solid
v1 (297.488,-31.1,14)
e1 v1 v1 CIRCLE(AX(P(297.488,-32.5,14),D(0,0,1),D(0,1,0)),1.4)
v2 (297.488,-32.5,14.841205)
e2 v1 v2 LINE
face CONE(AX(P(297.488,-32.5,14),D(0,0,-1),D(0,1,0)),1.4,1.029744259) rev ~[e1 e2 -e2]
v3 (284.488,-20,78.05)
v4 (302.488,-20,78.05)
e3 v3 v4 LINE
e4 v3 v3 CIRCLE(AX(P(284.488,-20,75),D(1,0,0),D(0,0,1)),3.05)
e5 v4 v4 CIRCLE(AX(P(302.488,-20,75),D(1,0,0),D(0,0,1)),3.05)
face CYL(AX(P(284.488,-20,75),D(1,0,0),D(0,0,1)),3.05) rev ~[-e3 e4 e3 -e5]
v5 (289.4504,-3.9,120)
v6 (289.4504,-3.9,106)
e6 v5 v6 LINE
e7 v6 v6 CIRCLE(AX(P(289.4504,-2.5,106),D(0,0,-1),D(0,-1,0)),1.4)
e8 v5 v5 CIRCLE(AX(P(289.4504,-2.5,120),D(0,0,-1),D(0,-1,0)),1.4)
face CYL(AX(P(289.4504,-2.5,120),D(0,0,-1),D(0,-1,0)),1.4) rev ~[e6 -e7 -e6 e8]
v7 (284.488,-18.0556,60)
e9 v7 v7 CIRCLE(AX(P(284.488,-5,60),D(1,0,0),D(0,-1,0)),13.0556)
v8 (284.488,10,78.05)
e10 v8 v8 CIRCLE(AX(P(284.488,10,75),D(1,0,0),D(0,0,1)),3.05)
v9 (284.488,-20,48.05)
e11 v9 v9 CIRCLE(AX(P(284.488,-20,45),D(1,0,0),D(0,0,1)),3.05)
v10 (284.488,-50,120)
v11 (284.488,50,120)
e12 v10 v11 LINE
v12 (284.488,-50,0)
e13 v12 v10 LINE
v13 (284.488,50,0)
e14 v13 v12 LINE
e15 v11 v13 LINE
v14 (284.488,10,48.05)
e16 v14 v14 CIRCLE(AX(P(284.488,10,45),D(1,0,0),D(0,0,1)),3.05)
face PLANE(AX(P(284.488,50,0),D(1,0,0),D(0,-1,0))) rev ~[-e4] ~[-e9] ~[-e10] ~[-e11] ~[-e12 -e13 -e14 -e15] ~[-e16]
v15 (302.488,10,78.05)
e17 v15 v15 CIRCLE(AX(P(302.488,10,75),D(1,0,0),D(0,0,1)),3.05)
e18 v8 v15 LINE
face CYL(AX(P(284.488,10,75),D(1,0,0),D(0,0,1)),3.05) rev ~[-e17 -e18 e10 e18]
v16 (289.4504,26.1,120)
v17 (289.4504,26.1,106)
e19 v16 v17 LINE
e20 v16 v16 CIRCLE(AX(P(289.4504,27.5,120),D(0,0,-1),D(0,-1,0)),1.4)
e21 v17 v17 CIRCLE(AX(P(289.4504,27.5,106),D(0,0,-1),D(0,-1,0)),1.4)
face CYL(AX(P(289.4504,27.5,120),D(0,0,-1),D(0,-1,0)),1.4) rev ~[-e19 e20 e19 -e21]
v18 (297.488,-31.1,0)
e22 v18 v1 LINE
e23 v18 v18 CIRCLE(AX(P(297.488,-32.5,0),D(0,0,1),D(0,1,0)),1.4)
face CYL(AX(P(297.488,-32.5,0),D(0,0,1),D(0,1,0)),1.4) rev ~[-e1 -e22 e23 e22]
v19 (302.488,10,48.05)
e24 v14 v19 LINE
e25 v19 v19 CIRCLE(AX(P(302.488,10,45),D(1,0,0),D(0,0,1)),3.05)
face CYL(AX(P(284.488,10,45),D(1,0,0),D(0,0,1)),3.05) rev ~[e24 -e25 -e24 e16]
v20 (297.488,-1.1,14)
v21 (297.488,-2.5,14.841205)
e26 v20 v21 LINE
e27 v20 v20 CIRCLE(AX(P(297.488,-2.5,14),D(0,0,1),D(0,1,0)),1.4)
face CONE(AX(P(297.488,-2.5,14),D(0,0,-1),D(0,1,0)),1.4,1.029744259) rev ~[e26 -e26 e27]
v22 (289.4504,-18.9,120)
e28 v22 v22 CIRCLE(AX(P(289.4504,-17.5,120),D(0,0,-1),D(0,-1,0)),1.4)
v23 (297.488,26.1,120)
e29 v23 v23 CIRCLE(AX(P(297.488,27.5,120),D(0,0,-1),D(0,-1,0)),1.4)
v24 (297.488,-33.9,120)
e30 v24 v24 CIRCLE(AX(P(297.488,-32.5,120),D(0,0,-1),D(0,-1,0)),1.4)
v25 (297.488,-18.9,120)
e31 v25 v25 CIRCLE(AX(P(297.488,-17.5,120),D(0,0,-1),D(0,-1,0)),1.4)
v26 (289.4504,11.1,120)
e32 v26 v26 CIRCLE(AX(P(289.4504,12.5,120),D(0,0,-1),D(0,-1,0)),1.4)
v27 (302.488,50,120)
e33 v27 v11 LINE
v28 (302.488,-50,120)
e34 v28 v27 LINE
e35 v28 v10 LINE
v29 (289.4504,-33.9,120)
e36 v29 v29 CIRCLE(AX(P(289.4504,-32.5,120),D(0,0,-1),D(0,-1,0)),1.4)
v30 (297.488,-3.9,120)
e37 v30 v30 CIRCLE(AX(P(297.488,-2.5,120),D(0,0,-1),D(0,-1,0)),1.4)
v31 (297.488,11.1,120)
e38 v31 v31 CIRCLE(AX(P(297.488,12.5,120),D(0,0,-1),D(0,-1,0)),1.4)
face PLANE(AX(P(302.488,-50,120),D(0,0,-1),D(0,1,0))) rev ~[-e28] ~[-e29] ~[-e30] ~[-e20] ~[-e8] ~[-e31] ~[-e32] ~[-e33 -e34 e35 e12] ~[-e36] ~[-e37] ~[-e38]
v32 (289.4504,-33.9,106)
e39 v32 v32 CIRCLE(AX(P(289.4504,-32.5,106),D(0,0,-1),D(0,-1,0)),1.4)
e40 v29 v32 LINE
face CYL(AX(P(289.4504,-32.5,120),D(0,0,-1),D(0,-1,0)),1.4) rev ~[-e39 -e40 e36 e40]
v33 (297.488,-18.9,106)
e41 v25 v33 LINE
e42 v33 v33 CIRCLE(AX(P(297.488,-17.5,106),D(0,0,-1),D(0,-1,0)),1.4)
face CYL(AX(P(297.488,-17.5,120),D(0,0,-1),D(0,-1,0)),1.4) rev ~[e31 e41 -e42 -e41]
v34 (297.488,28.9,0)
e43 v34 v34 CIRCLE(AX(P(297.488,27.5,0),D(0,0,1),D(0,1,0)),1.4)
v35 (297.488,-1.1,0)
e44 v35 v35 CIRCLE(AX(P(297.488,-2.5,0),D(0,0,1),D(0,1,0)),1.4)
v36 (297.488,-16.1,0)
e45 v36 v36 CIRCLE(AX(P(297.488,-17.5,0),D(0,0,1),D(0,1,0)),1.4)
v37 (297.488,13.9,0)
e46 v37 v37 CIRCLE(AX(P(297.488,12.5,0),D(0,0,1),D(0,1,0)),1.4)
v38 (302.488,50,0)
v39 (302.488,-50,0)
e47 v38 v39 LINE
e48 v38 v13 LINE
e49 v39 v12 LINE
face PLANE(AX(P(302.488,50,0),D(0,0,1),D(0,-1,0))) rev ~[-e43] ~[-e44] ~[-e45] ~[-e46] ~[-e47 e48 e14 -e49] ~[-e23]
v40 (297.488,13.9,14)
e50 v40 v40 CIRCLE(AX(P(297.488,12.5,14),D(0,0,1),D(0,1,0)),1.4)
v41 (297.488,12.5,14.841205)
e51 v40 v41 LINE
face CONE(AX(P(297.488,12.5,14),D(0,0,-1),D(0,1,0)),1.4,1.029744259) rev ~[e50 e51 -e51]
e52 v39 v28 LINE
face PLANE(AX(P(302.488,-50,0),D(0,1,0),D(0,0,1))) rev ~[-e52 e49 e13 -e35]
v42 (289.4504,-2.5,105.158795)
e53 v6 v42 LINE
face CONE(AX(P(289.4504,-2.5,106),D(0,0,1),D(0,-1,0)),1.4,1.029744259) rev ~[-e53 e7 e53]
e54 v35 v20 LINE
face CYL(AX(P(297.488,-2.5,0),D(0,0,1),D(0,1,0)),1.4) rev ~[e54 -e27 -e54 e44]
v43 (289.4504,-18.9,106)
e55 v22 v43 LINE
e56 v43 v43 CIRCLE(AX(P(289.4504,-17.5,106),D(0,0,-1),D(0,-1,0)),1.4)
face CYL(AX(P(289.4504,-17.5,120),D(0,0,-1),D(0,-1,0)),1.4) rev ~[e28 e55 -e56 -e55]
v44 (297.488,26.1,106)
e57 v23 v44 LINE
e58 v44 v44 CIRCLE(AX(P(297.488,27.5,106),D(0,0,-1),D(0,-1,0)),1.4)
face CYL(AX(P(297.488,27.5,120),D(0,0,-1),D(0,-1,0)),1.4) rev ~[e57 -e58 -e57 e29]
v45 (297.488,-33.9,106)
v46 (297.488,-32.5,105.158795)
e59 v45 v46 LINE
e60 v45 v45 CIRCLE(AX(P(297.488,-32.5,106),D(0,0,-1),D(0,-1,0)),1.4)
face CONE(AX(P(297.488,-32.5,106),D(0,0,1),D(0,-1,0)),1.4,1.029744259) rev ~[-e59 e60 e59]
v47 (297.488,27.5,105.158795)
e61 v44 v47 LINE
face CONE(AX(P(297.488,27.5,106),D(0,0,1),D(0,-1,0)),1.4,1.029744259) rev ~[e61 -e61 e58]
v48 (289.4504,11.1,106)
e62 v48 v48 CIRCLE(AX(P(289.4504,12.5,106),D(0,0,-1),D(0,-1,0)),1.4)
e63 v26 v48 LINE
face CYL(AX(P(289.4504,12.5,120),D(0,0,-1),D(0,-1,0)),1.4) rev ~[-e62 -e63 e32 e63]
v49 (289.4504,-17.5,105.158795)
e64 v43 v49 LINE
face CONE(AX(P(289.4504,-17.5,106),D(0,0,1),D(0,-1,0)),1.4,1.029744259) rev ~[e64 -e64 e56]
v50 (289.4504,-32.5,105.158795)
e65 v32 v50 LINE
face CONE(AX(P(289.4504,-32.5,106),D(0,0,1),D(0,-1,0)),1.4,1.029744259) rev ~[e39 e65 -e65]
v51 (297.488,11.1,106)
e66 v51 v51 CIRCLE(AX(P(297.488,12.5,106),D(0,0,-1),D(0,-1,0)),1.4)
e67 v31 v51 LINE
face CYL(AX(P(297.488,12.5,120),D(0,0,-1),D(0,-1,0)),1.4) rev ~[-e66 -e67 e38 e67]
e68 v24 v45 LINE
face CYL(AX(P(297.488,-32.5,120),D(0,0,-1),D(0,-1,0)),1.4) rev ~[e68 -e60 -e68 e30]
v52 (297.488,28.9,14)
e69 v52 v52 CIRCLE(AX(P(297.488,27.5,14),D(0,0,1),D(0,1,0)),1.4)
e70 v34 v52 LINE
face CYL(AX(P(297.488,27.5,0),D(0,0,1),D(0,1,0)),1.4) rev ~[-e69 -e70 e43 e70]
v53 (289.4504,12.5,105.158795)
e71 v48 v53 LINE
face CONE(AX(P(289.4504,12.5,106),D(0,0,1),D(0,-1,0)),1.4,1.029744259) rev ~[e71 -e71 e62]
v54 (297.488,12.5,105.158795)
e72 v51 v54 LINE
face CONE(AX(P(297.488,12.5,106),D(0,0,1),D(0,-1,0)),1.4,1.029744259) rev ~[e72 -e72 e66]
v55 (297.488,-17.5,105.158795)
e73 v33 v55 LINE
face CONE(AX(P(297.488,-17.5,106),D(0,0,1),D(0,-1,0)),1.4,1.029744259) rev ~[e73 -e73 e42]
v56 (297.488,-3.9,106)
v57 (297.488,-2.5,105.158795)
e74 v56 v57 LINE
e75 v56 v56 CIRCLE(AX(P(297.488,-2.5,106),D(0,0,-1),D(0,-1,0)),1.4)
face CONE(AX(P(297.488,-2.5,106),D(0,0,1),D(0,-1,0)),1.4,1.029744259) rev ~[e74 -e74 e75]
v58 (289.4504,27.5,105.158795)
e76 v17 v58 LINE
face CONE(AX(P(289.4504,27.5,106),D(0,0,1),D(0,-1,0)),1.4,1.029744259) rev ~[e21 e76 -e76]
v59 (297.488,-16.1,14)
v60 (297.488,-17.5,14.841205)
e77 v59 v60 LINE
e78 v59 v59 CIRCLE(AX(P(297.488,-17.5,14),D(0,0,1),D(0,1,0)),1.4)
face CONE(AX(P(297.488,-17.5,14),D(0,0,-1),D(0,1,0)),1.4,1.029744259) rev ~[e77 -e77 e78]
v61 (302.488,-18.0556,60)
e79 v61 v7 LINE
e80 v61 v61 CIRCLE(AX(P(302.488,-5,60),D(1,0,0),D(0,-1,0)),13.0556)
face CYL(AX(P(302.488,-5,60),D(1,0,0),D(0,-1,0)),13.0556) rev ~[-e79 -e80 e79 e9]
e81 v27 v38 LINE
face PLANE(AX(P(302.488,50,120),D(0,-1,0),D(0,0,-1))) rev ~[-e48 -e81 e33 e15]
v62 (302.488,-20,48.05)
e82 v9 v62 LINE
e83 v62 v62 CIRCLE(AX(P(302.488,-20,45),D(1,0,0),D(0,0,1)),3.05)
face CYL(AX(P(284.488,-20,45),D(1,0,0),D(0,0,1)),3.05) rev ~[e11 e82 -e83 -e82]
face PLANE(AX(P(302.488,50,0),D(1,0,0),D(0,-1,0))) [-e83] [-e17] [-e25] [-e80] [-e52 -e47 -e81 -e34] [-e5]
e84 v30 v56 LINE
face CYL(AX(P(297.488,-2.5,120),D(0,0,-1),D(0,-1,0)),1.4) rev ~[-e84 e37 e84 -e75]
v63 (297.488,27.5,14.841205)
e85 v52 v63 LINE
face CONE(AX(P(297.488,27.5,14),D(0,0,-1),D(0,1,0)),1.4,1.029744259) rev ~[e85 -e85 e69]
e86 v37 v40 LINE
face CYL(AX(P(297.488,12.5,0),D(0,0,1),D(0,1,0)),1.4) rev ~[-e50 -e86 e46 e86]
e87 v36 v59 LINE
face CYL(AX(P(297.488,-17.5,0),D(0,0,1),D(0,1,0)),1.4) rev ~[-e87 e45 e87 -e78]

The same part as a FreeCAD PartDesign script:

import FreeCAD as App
import Part
import Sketcher
from FreeCAD import Vector


def add_polygon(sketch, points):
    """Adds a closed chain of lines whose ends are joined by coincident constraints."""
    first, n = sketch.GeometryCount, len(points)
    for a, b in zip(points, points[1:] + points[:1]):
        sketch.addGeometry(Part.LineSegment(App.Vector(*a, 0), App.Vector(*b, 0)), False)
    for i in range(n):
        sketch.addConstraint(Sketcher.Constraint("Coincident", first + i, 2, first + (i + 1) % n, 1))

doc = App.newDocument("Part")
params = doc.addObject("Spreadsheet::Sheet", "Params")
for row, (alias, value) in enumerate([
    ("sketch1_width", "100 mm"),
    ("sketch1_height", "120 mm"),
    ("pad1_length", "18 mm"),
    ("sketch2_diameter", "2.8 mm"),
    ("hole_diameter", "2.8 mm"),
    ("hole_depth", "14 mm"),
    ("sketch3_diameter", "2.8 mm"),
    ("hole2_diameter", "2.8 mm"),
    ("hole2_depth", "14 mm"),
    ("sketch4_diameter", "6.1 mm"),
    ("hole3_diameter", "6.1 mm"),
], start=1):
    params.set(f"A{row}", alias)
    params.set(f"B{row}", "=" + value)
    params.setAlias(f"B{row}", alias)

body = doc.addObject("PartDesign::Body", "Body")

sketch1 = doc.addObject("Sketcher::SketchObject", "Sketch")
body.addObject(sketch1)
sketch1.AttachmentSupport = (doc.YZ_Plane, [""])
sketch1.MapMode = "FlatFace"
sketch1.AttachmentOffset = App.Placement(Vector(0, 0, 302.488), App.Rotation())
add_polygon(sketch1, [(50, 120), (-50, 120), (-50, 0), (50, 0)])
sketch1.addGeometry(Part.Circle(Vector(-5, 60, 0), Vector(0, 0, 1), 13), False)
sketch1.addConstraint(Sketcher.Constraint("Horizontal", 0))
sketch1.addConstraint(Sketcher.Constraint("Vertical", 1))
sketch1.addConstraint(Sketcher.Constraint("Horizontal", 2))
sketch1.addConstraint(Sketcher.Constraint("Vertical", 3))
sketch1.addConstraint(Sketcher.Constraint("Symmetric", 1, 2, 2, 2, -1, 1))
sketch1.addConstraint(Sketcher.Constraint("DistanceX", 0, 2, 0, 1, 100.0))
sketch1.addConstraint(Sketcher.Constraint("DistanceY", 1, 2, 1, 1, 120.0))
sketch1.addConstraint(Sketcher.Constraint("DistanceX", 4, 3, -1, 1, 5.0))
sketch1.addConstraint(Sketcher.Constraint("DistanceY", -1, 1, 4, 3, 60.0))
sketch1.addConstraint(Sketcher.Constraint("Diameter", 4, 26.1112))
sketch1.setExpression("Constraints[9]", "Params.sketch1_width")
sketch1.setExpression("Constraints[10]", "Params.sketch1_height")
pad1 = doc.addObject("PartDesign::Pad", "Pad")
body.addObject(pad1)
pad1.Profile = sketch1
pad1.setExpression("Length", "Params.pad1_length")
pad1.Reversed = True

sketch2 = doc.addObject("Sketcher::SketchObject", "Sketch001")
body.addObject(sketch2)
sketch2.AttachmentSupport = (doc.XY_Plane, [""])
sketch2.MapMode = "FlatFace"
sketch2.addGeometry(Part.Circle(Vector(297.5, -32.5, 0), Vector(0, 0, 1), 1.4), False)
sketch2.addGeometry(Part.Circle(Vector(297.5, -17.5, 0), Vector(0, 0, 1), 1.4), False)
sketch2.addGeometry(Part.Circle(Vector(297.5, -2.5, 0), Vector(0, 0, 1), 1.4), False)
sketch2.addGeometry(Part.Circle(Vector(297.5, 12.5, 0), Vector(0, 0, 1), 1.4), False)
sketch2.addGeometry(Part.Circle(Vector(297.5, 27.5, 0), Vector(0, 0, 1), 1.4), False)
sketch2.addConstraint(Sketcher.Constraint("Equal", 0, 1))
sketch2.addConstraint(Sketcher.Constraint("Equal", 1, 2))
sketch2.addConstraint(Sketcher.Constraint("Equal", 2, 3))
sketch2.addConstraint(Sketcher.Constraint("Equal", 3, 4))
sketch2.addConstraint(Sketcher.Constraint("Vertical", 0, 3, 1, 3))
sketch2.addConstraint(Sketcher.Constraint("Vertical", 1, 3, 2, 3))
sketch2.addConstraint(Sketcher.Constraint("Vertical", 2, 3, 3, 3))
sketch2.addConstraint(Sketcher.Constraint("Vertical", 3, 3, 4, 3))
sketch2.addConstraint(Sketcher.Constraint("Diameter", 0, 2.8))
sketch2.addConstraint(Sketcher.Constraint("DistanceY", 0, 3, 1, 3, 15.0))
sketch2.addConstraint(Sketcher.Constraint("DistanceY", 1, 3, 2, 3, 15.0))
sketch2.addConstraint(Sketcher.Constraint("DistanceY", 2, 3, 3, 3, 15.0))
sketch2.addConstraint(Sketcher.Constraint("DistanceY", 3, 3, 4, 3, 15.0))
sketch2.addConstraint(Sketcher.Constraint("DistanceY", 0, 3, -1, 1, 32.5))
sketch2.addConstraint(Sketcher.Constraint("DistanceX", -1, 1, 0, 3, 297.488))
sketch2.setExpression("Constraints[8]", "Params.sketch2_diameter")
doc.recompute()
hole = doc.addObject("PartDesign::Hole", "Hole")
body.addObject(hole)
hole.Profile = sketch2
hole.ThreadType = "None"
hole.setExpression("Diameter", "Params.hole_diameter")
hole.DepthType = "Dimension"
hole.setExpression("Depth", "Params.hole_depth")
hole.DrillPoint = "Angled"
hole.DrillPointAngle = 118
hole.Reversed = True

sketch3 = doc.addObject("Sketcher::SketchObject", "Sketch002")
body.addObject(sketch3)
sketch3.AttachmentSupport = (doc.XY_Plane, [""])
sketch3.MapMode = "FlatFace"
sketch3.AttachmentOffset = App.Placement(Vector(0, 0, 120), App.Rotation())
sketch3.addGeometry(Part.Circle(Vector(289.5, 27.5, 0), Vector(0, 0, 1), 1.4), False)
sketch3.addGeometry(Part.Circle(Vector(289.5, 12.5, 0), Vector(0, 0, 1), 1.4), False)
sketch3.addGeometry(Part.Circle(Vector(289.5, -2.5, 0), Vector(0, 0, 1), 1.4), False)
sketch3.addGeometry(Part.Circle(Vector(289.5, -17.5, 0), Vector(0, 0, 1), 1.4), False)
sketch3.addGeometry(Part.Circle(Vector(289.5, -32.5, 0), Vector(0, 0, 1), 1.4), False)
sketch3.addGeometry(Part.Circle(Vector(297.5, -32.5, 0), Vector(0, 0, 1), 1.4), False)
sketch3.addGeometry(Part.Circle(Vector(297.5, -17.5, 0), Vector(0, 0, 1), 1.4), False)
sketch3.addGeometry(Part.Circle(Vector(297.5, -2.5, 0), Vector(0, 0, 1), 1.4), False)
sketch3.addGeometry(Part.Circle(Vector(297.5, 12.5, 0), Vector(0, 0, 1), 1.4), False)
sketch3.addGeometry(Part.Circle(Vector(297.5, 27.5, 0), Vector(0, 0, 1), 1.4), False)
sketch3.addConstraint(Sketcher.Constraint("Equal", 0, 1))
sketch3.addConstraint(Sketcher.Constraint("Equal", 1, 2))
sketch3.addConstraint(Sketcher.Constraint("Equal", 2, 3))
sketch3.addConstraint(Sketcher.Constraint("Equal", 3, 4))
sketch3.addConstraint(Sketcher.Constraint("Equal", 4, 5))
sketch3.addConstraint(Sketcher.Constraint("Equal", 5, 6))
sketch3.addConstraint(Sketcher.Constraint("Equal", 6, 7))
sketch3.addConstraint(Sketcher.Constraint("Equal", 7, 8))
sketch3.addConstraint(Sketcher.Constraint("Equal", 8, 9))
sketch3.addConstraint(Sketcher.Constraint("Horizontal", 4, 3, 5, 3))
sketch3.addConstraint(Sketcher.Constraint("Horizontal", 3, 3, 6, 3))
sketch3.addConstraint(Sketcher.Constraint("Horizontal", 2, 3, 7, 3))
sketch3.addConstraint(Sketcher.Constraint("Horizontal", 1, 3, 8, 3))
sketch3.addConstraint(Sketcher.Constraint("Horizontal", 0, 3, 9, 3))
sketch3.addConstraint(Sketcher.Constraint("Vertical", 0, 3, 1, 3))
sketch3.addConstraint(Sketcher.Constraint("Vertical", 1, 3, 2, 3))
sketch3.addConstraint(Sketcher.Constraint("Vertical", 2, 3, 3, 3))
sketch3.addConstraint(Sketcher.Constraint("Vertical", 3, 3, 4, 3))
sketch3.addConstraint(Sketcher.Constraint("Vertical", 5, 3, 6, 3))
sketch3.addConstraint(Sketcher.Constraint("Vertical", 6, 3, 7, 3))
sketch3.addConstraint(Sketcher.Constraint("Vertical", 7, 3, 8, 3))
sketch3.addConstraint(Sketcher.Constraint("Vertical", 8, 3, 9, 3))
sketch3.addConstraint(Sketcher.Constraint("Diameter", 0, 2.8))
sketch3.addConstraint(Sketcher.Constraint("DistanceY", 1, 3, 0, 3, 15.0))
sketch3.addConstraint(Sketcher.Constraint("DistanceY", 2, 3, 1, 3, 15.0))
sketch3.addConstraint(Sketcher.Constraint("DistanceY", 3, 3, 2, 3, 15.0))
sketch3.addConstraint(Sketcher.Constraint("DistanceY", 4, 3, 3, 3, 15.0))
sketch3.addConstraint(Sketcher.Constraint("DistanceY", -1, 1, 0, 3, 27.5))
sketch3.addConstraint(Sketcher.Constraint("DistanceX", -1, 1, 5, 3, 297.488))
sketch3.addConstraint(Sketcher.Constraint("DistanceX", -1, 1, 0, 3, 289.4504))
sketch3.setExpression("Constraints[22]", "Params.sketch3_diameter")
doc.recompute()
hole2 = doc.addObject("PartDesign::Hole", "Hole001")
body.addObject(hole2)
hole2.Profile = sketch3
hole2.ThreadType = "None"
hole2.setExpression("Diameter", "Params.hole2_diameter")
hole2.DepthType = "Dimension"
hole2.setExpression("Depth", "Params.hole2_depth")
hole2.DrillPoint = "Angled"
hole2.DrillPointAngle = 118

sketch4 = doc.addObject("Sketcher::SketchObject", "Sketch003")
body.addObject(sketch4)
sketch4.AttachmentSupport = (doc.YZ_Plane, [""])
sketch4.MapMode = "FlatFace"
sketch4.AttachmentOffset = App.Placement(Vector(0, 0, 284.488), App.Rotation())
sketch4.addGeometry(Part.Circle(Vector(-20, 75, 0), Vector(0, 0, 1), 3), False)
sketch4.addGeometry(Part.Circle(Vector(-20, 45, 0), Vector(0, 0, 1), 3), False)
sketch4.addGeometry(Part.Circle(Vector(10, 45, 0), Vector(0, 0, 1), 3), False)
sketch4.addGeometry(Part.Circle(Vector(10, 75, 0), Vector(0, 0, 1), 3), False)
sketch4.addConstraint(Sketcher.Constraint("Equal", 0, 1))
sketch4.addConstraint(Sketcher.Constraint("Equal", 1, 2))
sketch4.addConstraint(Sketcher.Constraint("Equal", 2, 3))
sketch4.addConstraint(Sketcher.Constraint("Horizontal", 1, 3, 2, 3))
sketch4.addConstraint(Sketcher.Constraint("Horizontal", 0, 3, 3, 3))
sketch4.addConstraint(Sketcher.Constraint("Vertical", 0, 3, 1, 3))
sketch4.addConstraint(Sketcher.Constraint("Vertical", 2, 3, 3, 3))
sketch4.addConstraint(Sketcher.Constraint("Diameter", 0, 6.1))
sketch4.addConstraint(Sketcher.Constraint("DistanceX", 0, 3, -1, 1, 20.0))
sketch4.addConstraint(Sketcher.Constraint("DistanceY", -1, 1, 0, 3, 75.0))
sketch4.addConstraint(Sketcher.Constraint("DistanceY", -1, 1, 1, 3, 45.0))
sketch4.addConstraint(Sketcher.Constraint("DistanceX", -1, 1, 2, 3, 10.0))
sketch4.setExpression("Constraints[7]", "Params.sketch4_diameter")
doc.recompute()
hole3 = doc.addObject("PartDesign::Hole", "Hole002")
body.addObject(hole3)
hole3.Profile = sketch4
hole3.ThreadType = "None"
hole3.setExpression("Diameter", "Params.hole3_diameter")
hole3.DepthType = "ThroughAll"
hole3.Reversed = True

doc.recompute()
